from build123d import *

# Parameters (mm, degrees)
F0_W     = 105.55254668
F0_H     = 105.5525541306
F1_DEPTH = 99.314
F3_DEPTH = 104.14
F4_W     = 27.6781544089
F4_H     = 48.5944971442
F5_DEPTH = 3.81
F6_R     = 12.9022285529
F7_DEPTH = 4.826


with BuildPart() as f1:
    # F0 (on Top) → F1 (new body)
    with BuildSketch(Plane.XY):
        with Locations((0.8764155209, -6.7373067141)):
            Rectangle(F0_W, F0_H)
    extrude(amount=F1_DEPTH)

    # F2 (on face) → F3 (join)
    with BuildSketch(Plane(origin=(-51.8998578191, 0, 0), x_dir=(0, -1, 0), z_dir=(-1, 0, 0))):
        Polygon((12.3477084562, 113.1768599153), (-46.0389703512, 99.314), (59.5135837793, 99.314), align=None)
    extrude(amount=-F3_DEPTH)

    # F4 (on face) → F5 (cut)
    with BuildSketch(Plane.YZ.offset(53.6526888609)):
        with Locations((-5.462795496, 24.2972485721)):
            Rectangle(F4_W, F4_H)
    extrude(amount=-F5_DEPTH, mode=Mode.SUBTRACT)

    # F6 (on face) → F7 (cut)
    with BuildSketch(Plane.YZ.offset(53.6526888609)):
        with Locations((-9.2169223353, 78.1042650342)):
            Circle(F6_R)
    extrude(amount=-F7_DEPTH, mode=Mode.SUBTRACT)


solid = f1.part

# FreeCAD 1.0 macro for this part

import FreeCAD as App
import Part
import Sketcher
from FreeCAD import Vector
Q = App.Units.Quantity

doc = App.newDocument("Part")
body = doc.addObject("PartDesign::Body", "Body")

# Sketch on XY plane
sketch1 = body.newObject("Sketcher::SketchObject", "Sketch")
sketch1.AttachmentSupport = (doc.getObject("XY_Plane"), [""])
sketch1.MapMode = "FlatFace"
sketch1.addGeometry(Part.LineSegment(Vector(-52, 46, 0), Vector(-52, -60, 0)), False)
sketch1.addGeometry(Part.LineSegment(Vector(-52, -60, 0), Vector(54, -60, 0)), False)
sketch1.addGeometry(Part.LineSegment(Vector(54, -60, 0), Vector(54, 46, 0)), False)
sketch1.addGeometry(Part.LineSegment(Vector(54, 46, 0), Vector(-52, 46, 0)), False)
sketch1.addConstraint(Sketcher.Constraint("Coincident", 0, 2, 1, 1))
sketch1.addConstraint(Sketcher.Constraint("Coincident", 1, 2, 2, 1))
sketch1.addConstraint(Sketcher.Constraint("Coincident", 2, 2, 3, 1))
sketch1.addConstraint(Sketcher.Constraint("Coincident", 3, 2, 0, 1))
sketch1.addConstraint(Sketcher.Constraint("Vertical", 0))
sketch1.addConstraint(Sketcher.Constraint("Horizontal", 1))
sketch1.addConstraint(Sketcher.Constraint("Vertical", 2))
sketch1.addConstraint(Sketcher.Constraint("Horizontal", 3))
sketch1.addConstraint(Sketcher.Constraint("DistanceX", 1, 1, 1, 2, Q("105.552547 mm")))
sketch1.addConstraint(Sketcher.Constraint("DistanceY", 0, 2, 0, 1, Q("105.552554 mm")))
sketch1.addConstraint(Sketcher.Constraint("DistanceX", -1, 1, 1, 2, Q("53.652689 mm")))
sketch1.addConstraint(Sketcher.Constraint("DistanceY", -1, 1, 2, 2, Q("46.03897 mm")))
pad1 = body.newObject("PartDesign::Pad", "Pad")
pad1.Profile = sketch1
pad1.Length = Q("3.91 in")

# Sketch on YZ plane
sketch2 = body.newObject("Sketcher::SketchObject", "Sketch001")
sketch2.AttachmentSupport = (doc.getObject("YZ_Plane"), [""])
sketch2.MapMode = "FlatFace"
sketch2.AttachmentOffset = App.Placement(Vector(0, 0, -51.899858), App.Rotation())
sketch2.addGeometry(Part.LineSegment(Vector(-12, 113, 0), Vector(46, 99, 0)), False)
sketch2.addGeometry(Part.LineSegment(Vector(46, 99, 0), Vector(-60, 99, 0)), False)
sketch2.addGeometry(Part.LineSegment(Vector(-60, 99, 0), Vector(-12, 113, 0)), False)
sketch2.addConstraint(Sketcher.Constraint("Coincident", 0, 2, 1, 1))
sketch2.addConstraint(Sketcher.Constraint("Coincident", 1, 2, 2, 1))
sketch2.addConstraint(Sketcher.Constraint("Coincident", 2, 2, 0, 1))
sketch2.addConstraint(Sketcher.Constraint("Horizontal", 1))
sketch2.addConstraint(Sketcher.Constraint("DistanceY", -1, 1, 0, 2, Q("3.91 in")))
sketch2.addConstraint(Sketcher.Constraint("Distance", 0, Q("60.009859 mm")))
sketch2.addConstraint(Sketcher.Constraint("DistanceX", 1, 2, 1, 1, Q("105.552554 mm")))
sketch2.addConstraint(Sketcher.Constraint("DistanceX", -1, 1, 0, 2, Q("46.03897 mm")))
sketch2.addConstraint(Sketcher.Constraint("DistanceX", 2, 2, -1, 1, Q("12.347708 mm")))
pad2 = body.newObject("PartDesign::Pad", "Pad001")
pad2.Profile = sketch2
pad2.Length = Q("4.1 in")

# Sketch on YZ plane
sketch3 = body.newObject("Sketcher::SketchObject", "Sketch002")
sketch3.AttachmentSupport = (doc.getObject("YZ_Plane"), [""])
sketch3.MapMode = "FlatFace"
sketch3.AttachmentOffset = App.Placement(Vector(0, 0, 53.652689), App.Rotation())
sketch3.addGeometry(Part.LineSegment(Vector(-19, 49, 0), Vector(-19, 0, 0)), False)
sketch3.addGeometry(Part.LineSegment(Vector(-19, 0, 0), Vector(8, 0, 0)), False)
sketch3.addGeometry(Part.LineSegment(Vector(8, 0, 0), Vector(8, 49, 0)), False)
sketch3.addGeometry(Part.LineSegment(Vector(8, 49, 0), Vector(-19, 49, 0)), False)
sketch3.addConstraint(Sketcher.Constraint("Coincident", 0, 2, 1, 1))
sketch3.addConstraint(Sketcher.Constraint("Coincident", 1, 2, 2, 1))
sketch3.addConstraint(Sketcher.Constraint("Coincident", 2, 2, 3, 1))
sketch3.addConstraint(Sketcher.Constraint("Coincident", 3, 2, 0, 1))
sketch3.addConstraint(Sketcher.Constraint("Vertical", 0))
sketch3.addConstraint(Sketcher.Constraint("Horizontal", 1))
sketch3.addConstraint(Sketcher.Constraint("Vertical", 2))
sketch3.addConstraint(Sketcher.Constraint("Horizontal", 3))
sketch3.addConstraint(Sketcher.Constraint("PointOnObject", 0, 2, -1))
sketch3.addConstraint(Sketcher.Constraint("DistanceX", 1, 1, 1, 2, Q("27.678154 mm")))
sketch3.addConstraint(Sketcher.Constraint("DistanceY", 0, 2, 0, 1, Q("48.594497 mm")))
sketch3.addConstraint(Sketcher.Constraint("DistanceX", -1, 1, 1, 2, Q("8.376282 mm")))
pocket1 = body.newObject("PartDesign::Pocket", "Pocket")
pocket1.Profile = sketch3
pocket1.Length = Q("0.15 in")

# Sketch on YZ plane
sketch4 = body.newObject("Sketcher::SketchObject", "Sketch003")
sketch4.AttachmentSupport = (doc.getObject("YZ_Plane"), [""])
sketch4.MapMode = "FlatFace"
sketch4.AttachmentOffset = App.Placement(Vector(0, 0, 53.652689), App.Rotation())
sketch4.addGeometry(Part.Circle(Vector(-9, 78, 0), Vector(0, 0, 1), 13), False)
sketch4.addConstraint(Sketcher.Constraint("Diameter", 0, Q("25.804457 mm")))
sketch4.addConstraint(Sketcher.Constraint("DistanceX", 0, 3, -1, 1, Q("9.216922 mm")))
sketch4.addConstraint(Sketcher.Constraint("DistanceY", -1, 1, 0, 3, Q("78.104265 mm")))
pocket2 = body.newObject("PartDesign::Pocket", "Pocket001")
pocket2.Profile = sketch4
pocket2.Length = Q("0.19 in")

doc.recompute()
